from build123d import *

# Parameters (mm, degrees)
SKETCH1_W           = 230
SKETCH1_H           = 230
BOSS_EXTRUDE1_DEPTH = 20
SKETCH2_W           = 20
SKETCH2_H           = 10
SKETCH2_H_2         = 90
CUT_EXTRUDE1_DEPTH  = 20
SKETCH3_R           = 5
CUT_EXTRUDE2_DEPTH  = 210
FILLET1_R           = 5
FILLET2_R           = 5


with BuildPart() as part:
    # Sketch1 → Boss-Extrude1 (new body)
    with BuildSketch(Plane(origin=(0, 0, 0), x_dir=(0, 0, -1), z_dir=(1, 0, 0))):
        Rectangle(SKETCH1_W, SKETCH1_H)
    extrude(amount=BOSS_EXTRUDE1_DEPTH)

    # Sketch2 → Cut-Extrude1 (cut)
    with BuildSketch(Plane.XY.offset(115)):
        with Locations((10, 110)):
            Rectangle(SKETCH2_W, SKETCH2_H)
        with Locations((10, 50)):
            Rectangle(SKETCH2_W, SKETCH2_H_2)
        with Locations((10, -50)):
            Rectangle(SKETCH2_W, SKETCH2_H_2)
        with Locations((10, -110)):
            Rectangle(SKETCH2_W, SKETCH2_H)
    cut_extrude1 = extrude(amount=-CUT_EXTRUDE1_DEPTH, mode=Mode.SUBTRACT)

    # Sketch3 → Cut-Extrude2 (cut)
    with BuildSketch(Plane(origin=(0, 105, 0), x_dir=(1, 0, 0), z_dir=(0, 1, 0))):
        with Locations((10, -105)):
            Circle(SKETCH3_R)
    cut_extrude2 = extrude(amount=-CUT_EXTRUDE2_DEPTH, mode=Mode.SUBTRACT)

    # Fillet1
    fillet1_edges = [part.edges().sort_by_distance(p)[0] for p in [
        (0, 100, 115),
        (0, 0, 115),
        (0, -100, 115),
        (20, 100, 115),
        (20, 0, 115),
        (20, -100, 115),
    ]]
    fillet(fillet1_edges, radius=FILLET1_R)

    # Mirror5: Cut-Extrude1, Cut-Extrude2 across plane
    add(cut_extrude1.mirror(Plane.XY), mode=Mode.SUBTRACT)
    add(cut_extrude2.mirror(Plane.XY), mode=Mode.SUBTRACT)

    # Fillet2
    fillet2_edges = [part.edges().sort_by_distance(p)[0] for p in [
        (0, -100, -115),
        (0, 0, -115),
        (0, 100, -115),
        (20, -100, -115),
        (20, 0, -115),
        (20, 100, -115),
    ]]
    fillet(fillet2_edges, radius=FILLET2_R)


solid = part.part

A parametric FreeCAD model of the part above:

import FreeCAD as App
import Part
import Sketcher
from FreeCAD import Vector


def edges_at(feature, points):
    """Names of the edges that pass closest to the given points."""
    edges = feature.Shape.Edges
    near = lambda p: min(range(len(edges)), key=lambda i: edges[i].distToShape(Part.Vertex(*p))[0])
    return sorted({f"Edge{near(p) + 1}" for p in points})


def add_polygon(sketch, points):
    """Adds a closed chain of lines whose ends are joined by coincident constraints."""
    first, n = sketch.GeometryCount, len(points)
    for a, b in zip(points, points[1:] + points[:1]):
        sketch.addGeometry(Part.LineSegment(App.Vector(*a, 0), App.Vector(*b, 0)), False)
    for i in range(n):
        sketch.addConstraint(Sketcher.Constraint("Coincident", first + i, 2, first + (i + 1) % n, 1))

doc = App.newDocument("Part")
body = doc.addObject("PartDesign::Body", "Body")

# Sketch on YZ plane
sketch1 = body.newObject("Sketcher::SketchObject", "Sketch")
sketch1.AttachmentSupport = (doc.getObject("YZ_Plane"), [""])
sketch1.MapMode = "FlatFace"
add_polygon(sketch1, [(115, 115), (-115, 115), (-115, -115), (115, -115)])  # lines 0-3
sketch1.addConstraint(Sketcher.Constraint("Horizontal", 0))
sketch1.addConstraint(Sketcher.Constraint("Vertical", 1))
sketch1.addConstraint(Sketcher.Constraint("Horizontal", 2))
sketch1.addConstraint(Sketcher.Constraint("Vertical", 3))
sketch1.addConstraint(Sketcher.Constraint("Symmetric", 0, 2, 2, 2, -1, 1))
sketch1.addConstraint(Sketcher.Constraint("Equal", 2, 1))
sketch1.addConstraint(Sketcher.Constraint("DistanceX", 0, 2, 0, 1, 230.0))
pad1 = body.newObject("PartDesign::Pad", "Pad")
pad1.Profile = sketch1
pad1.Length = 20

# Sketch on XY plane
sketch2 = body.newObject("Sketcher::SketchObject", "Sketch001")
sketch2.AttachmentSupport = (doc.getObject("XY_Plane"), [""])
sketch2.MapMode = "FlatFace"
sketch2.AttachmentOffset = App.Placement(Vector(0, 0, 115), App.Rotation())
add_polygon(sketch2, [(0, 115), (0, 105), (20, 105), (20, 115)])  # lines 0-3
add_polygon(sketch2, [(0, 95), (0, 5), (20, 5), (20, 95)])  # lines 4-7
add_polygon(sketch2, [(0, -5), (0, -95), (20, -95), (20, -5)])  # lines 8-11
add_polygon(sketch2, [(0, -105), (0, -115), (20, -115), (20, -105)])  # lines 12-15
sketch2.addConstraint(Sketcher.Constraint("Vertical", 0))
sketch2.addConstraint(Sketcher.Constraint("Horizontal", 1))
sketch2.addConstraint(Sketcher.Constraint("Vertical", 2))
sketch2.addConstraint(Sketcher.Constraint("Horizontal", 3))
sketch2.addConstraint(Sketcher.Constraint("Vertical", 4))
sketch2.addConstraint(Sketcher.Constraint("Horizontal", 5))
sketch2.addConstraint(Sketcher.Constraint("Vertical", 6))
sketch2.addConstraint(Sketcher.Constraint("Horizontal", 7))
sketch2.addConstraint(Sketcher.Constraint("Vertical", 8))
sketch2.addConstraint(Sketcher.Constraint("Horizontal", 9))
sketch2.addConstraint(Sketcher.Constraint("Vertical", 10))
sketch2.addConstraint(Sketcher.Constraint("Horizontal", 11))
sketch2.addConstraint(Sketcher.Constraint("Vertical", 12))
sketch2.addConstraint(Sketcher.Constraint("Horizontal", 13))
sketch2.addConstraint(Sketcher.Constraint("Vertical", 14))
sketch2.addConstraint(Sketcher.Constraint("Horizontal", 15))
sketch2.addConstraint(Sketcher.Constraint("Symmetric", 7, 2, 8, 2, -1, 1))
sketch2.addConstraint(Sketcher.Constraint("Symmetric", 3, 2, 12, 2, -1, 1))
sketch2.addConstraint(Sketcher.Constraint("Symmetric", 5, 2, 10, 2, -1))
sketch2.addConstraint(Sketcher.Constraint("Symmetric", 1, 2, 14, 2, -1))
sketch2.addConstraint(Sketcher.Constraint("PointOnObject", 0, 2, -2))
sketch2.addConstraint(Sketcher.Constraint("PointOnObject", 4, 2, -2))
sketch2.addConstraint(Sketcher.Constraint("Vertical", 2, 2, 5, 2))
sketch2.addConstraint(Sketcher.Constraint("DistanceX", 1, 1, 1, 2, 20.0))
sketch2.addConstraint(Sketcher.Constraint("DistanceY", 0, 2, 0, 1, 10.0))
sketch2.addConstraint(Sketcher.Constraint("DistanceY", 4, 2, 4, 1, 90.0))
sketch2.addConstraint(Sketcher.Constraint("DistanceY", -1, 1, 0, 2, 105.0))
sketch2.addConstraint(Sketcher.Constraint("DistanceY", -1, 1, 4, 2, 5.0))
pocket1 = body.newObject("PartDesign::Pocket", "Pocket")
pocket1.Profile = sketch2
pocket1.Length = 20

# Sketch on XZ plane
sketch3 = body.newObject("Sketcher::SketchObject", "Sketch002")
sketch3.AttachmentSupport = (doc.getObject("XZ_Plane"), [""])
sketch3.MapMode = "FlatFace"
sketch3.AttachmentOffset = App.Placement(Vector(0, 0, -105), App.Rotation())
sketch3.addGeometry(Part.Circle(Vector(10, 105, 0), Vector(0, 0, 1), 5), False)
sketch3.addConstraint(Sketcher.Constraint("Diameter", 0, 10.0))
sketch3.addConstraint(Sketcher.Constraint("DistanceX", -1, 1, 0, 3, 10.0))
sketch3.addConstraint(Sketcher.Constraint("DistanceY", -1, 1, 0, 3, 105.0))
pocket2 = body.newObject("PartDesign::Pocket", "Pocket001")
pocket2.Profile = sketch3
pocket2.Length = 210
pocket2.Reversed = True
doc.recompute()

fillet = body.newObject("PartDesign::Fillet", "Fillet")
fillet.Base = (pocket2, edges_at(pocket2, [
    (0, 100, 115),
    (0, 0, 115),
    (0, -100, 115),
    (20, 100, 115),
    (20, 0, 115),
    (20, -100, 115),
]))
fillet.Radius = 5
doc.recompute()

mirrored = body.newObject("PartDesign::Mirrored", "Mirrored")
mirrored.Originals = [pocket1, pocket2]
mirrored.MirrorPlane = (doc.getObject("XY_Plane"), [""])
body.Tip = mirrored
doc.recompute()

fillet2 = body.newObject("PartDesign::Fillet", "Fillet001")
fillet2.Base = (mirrored, edges_at(mirrored, [
    (0, -100, -115),
    (0, 0, -115),
    (0, 100, -115),
    (20, -100, -115),
    (20, 0, -115),
    (20, 100, -115),
]))
fillet2.Radius = 5

doc.recompute()
